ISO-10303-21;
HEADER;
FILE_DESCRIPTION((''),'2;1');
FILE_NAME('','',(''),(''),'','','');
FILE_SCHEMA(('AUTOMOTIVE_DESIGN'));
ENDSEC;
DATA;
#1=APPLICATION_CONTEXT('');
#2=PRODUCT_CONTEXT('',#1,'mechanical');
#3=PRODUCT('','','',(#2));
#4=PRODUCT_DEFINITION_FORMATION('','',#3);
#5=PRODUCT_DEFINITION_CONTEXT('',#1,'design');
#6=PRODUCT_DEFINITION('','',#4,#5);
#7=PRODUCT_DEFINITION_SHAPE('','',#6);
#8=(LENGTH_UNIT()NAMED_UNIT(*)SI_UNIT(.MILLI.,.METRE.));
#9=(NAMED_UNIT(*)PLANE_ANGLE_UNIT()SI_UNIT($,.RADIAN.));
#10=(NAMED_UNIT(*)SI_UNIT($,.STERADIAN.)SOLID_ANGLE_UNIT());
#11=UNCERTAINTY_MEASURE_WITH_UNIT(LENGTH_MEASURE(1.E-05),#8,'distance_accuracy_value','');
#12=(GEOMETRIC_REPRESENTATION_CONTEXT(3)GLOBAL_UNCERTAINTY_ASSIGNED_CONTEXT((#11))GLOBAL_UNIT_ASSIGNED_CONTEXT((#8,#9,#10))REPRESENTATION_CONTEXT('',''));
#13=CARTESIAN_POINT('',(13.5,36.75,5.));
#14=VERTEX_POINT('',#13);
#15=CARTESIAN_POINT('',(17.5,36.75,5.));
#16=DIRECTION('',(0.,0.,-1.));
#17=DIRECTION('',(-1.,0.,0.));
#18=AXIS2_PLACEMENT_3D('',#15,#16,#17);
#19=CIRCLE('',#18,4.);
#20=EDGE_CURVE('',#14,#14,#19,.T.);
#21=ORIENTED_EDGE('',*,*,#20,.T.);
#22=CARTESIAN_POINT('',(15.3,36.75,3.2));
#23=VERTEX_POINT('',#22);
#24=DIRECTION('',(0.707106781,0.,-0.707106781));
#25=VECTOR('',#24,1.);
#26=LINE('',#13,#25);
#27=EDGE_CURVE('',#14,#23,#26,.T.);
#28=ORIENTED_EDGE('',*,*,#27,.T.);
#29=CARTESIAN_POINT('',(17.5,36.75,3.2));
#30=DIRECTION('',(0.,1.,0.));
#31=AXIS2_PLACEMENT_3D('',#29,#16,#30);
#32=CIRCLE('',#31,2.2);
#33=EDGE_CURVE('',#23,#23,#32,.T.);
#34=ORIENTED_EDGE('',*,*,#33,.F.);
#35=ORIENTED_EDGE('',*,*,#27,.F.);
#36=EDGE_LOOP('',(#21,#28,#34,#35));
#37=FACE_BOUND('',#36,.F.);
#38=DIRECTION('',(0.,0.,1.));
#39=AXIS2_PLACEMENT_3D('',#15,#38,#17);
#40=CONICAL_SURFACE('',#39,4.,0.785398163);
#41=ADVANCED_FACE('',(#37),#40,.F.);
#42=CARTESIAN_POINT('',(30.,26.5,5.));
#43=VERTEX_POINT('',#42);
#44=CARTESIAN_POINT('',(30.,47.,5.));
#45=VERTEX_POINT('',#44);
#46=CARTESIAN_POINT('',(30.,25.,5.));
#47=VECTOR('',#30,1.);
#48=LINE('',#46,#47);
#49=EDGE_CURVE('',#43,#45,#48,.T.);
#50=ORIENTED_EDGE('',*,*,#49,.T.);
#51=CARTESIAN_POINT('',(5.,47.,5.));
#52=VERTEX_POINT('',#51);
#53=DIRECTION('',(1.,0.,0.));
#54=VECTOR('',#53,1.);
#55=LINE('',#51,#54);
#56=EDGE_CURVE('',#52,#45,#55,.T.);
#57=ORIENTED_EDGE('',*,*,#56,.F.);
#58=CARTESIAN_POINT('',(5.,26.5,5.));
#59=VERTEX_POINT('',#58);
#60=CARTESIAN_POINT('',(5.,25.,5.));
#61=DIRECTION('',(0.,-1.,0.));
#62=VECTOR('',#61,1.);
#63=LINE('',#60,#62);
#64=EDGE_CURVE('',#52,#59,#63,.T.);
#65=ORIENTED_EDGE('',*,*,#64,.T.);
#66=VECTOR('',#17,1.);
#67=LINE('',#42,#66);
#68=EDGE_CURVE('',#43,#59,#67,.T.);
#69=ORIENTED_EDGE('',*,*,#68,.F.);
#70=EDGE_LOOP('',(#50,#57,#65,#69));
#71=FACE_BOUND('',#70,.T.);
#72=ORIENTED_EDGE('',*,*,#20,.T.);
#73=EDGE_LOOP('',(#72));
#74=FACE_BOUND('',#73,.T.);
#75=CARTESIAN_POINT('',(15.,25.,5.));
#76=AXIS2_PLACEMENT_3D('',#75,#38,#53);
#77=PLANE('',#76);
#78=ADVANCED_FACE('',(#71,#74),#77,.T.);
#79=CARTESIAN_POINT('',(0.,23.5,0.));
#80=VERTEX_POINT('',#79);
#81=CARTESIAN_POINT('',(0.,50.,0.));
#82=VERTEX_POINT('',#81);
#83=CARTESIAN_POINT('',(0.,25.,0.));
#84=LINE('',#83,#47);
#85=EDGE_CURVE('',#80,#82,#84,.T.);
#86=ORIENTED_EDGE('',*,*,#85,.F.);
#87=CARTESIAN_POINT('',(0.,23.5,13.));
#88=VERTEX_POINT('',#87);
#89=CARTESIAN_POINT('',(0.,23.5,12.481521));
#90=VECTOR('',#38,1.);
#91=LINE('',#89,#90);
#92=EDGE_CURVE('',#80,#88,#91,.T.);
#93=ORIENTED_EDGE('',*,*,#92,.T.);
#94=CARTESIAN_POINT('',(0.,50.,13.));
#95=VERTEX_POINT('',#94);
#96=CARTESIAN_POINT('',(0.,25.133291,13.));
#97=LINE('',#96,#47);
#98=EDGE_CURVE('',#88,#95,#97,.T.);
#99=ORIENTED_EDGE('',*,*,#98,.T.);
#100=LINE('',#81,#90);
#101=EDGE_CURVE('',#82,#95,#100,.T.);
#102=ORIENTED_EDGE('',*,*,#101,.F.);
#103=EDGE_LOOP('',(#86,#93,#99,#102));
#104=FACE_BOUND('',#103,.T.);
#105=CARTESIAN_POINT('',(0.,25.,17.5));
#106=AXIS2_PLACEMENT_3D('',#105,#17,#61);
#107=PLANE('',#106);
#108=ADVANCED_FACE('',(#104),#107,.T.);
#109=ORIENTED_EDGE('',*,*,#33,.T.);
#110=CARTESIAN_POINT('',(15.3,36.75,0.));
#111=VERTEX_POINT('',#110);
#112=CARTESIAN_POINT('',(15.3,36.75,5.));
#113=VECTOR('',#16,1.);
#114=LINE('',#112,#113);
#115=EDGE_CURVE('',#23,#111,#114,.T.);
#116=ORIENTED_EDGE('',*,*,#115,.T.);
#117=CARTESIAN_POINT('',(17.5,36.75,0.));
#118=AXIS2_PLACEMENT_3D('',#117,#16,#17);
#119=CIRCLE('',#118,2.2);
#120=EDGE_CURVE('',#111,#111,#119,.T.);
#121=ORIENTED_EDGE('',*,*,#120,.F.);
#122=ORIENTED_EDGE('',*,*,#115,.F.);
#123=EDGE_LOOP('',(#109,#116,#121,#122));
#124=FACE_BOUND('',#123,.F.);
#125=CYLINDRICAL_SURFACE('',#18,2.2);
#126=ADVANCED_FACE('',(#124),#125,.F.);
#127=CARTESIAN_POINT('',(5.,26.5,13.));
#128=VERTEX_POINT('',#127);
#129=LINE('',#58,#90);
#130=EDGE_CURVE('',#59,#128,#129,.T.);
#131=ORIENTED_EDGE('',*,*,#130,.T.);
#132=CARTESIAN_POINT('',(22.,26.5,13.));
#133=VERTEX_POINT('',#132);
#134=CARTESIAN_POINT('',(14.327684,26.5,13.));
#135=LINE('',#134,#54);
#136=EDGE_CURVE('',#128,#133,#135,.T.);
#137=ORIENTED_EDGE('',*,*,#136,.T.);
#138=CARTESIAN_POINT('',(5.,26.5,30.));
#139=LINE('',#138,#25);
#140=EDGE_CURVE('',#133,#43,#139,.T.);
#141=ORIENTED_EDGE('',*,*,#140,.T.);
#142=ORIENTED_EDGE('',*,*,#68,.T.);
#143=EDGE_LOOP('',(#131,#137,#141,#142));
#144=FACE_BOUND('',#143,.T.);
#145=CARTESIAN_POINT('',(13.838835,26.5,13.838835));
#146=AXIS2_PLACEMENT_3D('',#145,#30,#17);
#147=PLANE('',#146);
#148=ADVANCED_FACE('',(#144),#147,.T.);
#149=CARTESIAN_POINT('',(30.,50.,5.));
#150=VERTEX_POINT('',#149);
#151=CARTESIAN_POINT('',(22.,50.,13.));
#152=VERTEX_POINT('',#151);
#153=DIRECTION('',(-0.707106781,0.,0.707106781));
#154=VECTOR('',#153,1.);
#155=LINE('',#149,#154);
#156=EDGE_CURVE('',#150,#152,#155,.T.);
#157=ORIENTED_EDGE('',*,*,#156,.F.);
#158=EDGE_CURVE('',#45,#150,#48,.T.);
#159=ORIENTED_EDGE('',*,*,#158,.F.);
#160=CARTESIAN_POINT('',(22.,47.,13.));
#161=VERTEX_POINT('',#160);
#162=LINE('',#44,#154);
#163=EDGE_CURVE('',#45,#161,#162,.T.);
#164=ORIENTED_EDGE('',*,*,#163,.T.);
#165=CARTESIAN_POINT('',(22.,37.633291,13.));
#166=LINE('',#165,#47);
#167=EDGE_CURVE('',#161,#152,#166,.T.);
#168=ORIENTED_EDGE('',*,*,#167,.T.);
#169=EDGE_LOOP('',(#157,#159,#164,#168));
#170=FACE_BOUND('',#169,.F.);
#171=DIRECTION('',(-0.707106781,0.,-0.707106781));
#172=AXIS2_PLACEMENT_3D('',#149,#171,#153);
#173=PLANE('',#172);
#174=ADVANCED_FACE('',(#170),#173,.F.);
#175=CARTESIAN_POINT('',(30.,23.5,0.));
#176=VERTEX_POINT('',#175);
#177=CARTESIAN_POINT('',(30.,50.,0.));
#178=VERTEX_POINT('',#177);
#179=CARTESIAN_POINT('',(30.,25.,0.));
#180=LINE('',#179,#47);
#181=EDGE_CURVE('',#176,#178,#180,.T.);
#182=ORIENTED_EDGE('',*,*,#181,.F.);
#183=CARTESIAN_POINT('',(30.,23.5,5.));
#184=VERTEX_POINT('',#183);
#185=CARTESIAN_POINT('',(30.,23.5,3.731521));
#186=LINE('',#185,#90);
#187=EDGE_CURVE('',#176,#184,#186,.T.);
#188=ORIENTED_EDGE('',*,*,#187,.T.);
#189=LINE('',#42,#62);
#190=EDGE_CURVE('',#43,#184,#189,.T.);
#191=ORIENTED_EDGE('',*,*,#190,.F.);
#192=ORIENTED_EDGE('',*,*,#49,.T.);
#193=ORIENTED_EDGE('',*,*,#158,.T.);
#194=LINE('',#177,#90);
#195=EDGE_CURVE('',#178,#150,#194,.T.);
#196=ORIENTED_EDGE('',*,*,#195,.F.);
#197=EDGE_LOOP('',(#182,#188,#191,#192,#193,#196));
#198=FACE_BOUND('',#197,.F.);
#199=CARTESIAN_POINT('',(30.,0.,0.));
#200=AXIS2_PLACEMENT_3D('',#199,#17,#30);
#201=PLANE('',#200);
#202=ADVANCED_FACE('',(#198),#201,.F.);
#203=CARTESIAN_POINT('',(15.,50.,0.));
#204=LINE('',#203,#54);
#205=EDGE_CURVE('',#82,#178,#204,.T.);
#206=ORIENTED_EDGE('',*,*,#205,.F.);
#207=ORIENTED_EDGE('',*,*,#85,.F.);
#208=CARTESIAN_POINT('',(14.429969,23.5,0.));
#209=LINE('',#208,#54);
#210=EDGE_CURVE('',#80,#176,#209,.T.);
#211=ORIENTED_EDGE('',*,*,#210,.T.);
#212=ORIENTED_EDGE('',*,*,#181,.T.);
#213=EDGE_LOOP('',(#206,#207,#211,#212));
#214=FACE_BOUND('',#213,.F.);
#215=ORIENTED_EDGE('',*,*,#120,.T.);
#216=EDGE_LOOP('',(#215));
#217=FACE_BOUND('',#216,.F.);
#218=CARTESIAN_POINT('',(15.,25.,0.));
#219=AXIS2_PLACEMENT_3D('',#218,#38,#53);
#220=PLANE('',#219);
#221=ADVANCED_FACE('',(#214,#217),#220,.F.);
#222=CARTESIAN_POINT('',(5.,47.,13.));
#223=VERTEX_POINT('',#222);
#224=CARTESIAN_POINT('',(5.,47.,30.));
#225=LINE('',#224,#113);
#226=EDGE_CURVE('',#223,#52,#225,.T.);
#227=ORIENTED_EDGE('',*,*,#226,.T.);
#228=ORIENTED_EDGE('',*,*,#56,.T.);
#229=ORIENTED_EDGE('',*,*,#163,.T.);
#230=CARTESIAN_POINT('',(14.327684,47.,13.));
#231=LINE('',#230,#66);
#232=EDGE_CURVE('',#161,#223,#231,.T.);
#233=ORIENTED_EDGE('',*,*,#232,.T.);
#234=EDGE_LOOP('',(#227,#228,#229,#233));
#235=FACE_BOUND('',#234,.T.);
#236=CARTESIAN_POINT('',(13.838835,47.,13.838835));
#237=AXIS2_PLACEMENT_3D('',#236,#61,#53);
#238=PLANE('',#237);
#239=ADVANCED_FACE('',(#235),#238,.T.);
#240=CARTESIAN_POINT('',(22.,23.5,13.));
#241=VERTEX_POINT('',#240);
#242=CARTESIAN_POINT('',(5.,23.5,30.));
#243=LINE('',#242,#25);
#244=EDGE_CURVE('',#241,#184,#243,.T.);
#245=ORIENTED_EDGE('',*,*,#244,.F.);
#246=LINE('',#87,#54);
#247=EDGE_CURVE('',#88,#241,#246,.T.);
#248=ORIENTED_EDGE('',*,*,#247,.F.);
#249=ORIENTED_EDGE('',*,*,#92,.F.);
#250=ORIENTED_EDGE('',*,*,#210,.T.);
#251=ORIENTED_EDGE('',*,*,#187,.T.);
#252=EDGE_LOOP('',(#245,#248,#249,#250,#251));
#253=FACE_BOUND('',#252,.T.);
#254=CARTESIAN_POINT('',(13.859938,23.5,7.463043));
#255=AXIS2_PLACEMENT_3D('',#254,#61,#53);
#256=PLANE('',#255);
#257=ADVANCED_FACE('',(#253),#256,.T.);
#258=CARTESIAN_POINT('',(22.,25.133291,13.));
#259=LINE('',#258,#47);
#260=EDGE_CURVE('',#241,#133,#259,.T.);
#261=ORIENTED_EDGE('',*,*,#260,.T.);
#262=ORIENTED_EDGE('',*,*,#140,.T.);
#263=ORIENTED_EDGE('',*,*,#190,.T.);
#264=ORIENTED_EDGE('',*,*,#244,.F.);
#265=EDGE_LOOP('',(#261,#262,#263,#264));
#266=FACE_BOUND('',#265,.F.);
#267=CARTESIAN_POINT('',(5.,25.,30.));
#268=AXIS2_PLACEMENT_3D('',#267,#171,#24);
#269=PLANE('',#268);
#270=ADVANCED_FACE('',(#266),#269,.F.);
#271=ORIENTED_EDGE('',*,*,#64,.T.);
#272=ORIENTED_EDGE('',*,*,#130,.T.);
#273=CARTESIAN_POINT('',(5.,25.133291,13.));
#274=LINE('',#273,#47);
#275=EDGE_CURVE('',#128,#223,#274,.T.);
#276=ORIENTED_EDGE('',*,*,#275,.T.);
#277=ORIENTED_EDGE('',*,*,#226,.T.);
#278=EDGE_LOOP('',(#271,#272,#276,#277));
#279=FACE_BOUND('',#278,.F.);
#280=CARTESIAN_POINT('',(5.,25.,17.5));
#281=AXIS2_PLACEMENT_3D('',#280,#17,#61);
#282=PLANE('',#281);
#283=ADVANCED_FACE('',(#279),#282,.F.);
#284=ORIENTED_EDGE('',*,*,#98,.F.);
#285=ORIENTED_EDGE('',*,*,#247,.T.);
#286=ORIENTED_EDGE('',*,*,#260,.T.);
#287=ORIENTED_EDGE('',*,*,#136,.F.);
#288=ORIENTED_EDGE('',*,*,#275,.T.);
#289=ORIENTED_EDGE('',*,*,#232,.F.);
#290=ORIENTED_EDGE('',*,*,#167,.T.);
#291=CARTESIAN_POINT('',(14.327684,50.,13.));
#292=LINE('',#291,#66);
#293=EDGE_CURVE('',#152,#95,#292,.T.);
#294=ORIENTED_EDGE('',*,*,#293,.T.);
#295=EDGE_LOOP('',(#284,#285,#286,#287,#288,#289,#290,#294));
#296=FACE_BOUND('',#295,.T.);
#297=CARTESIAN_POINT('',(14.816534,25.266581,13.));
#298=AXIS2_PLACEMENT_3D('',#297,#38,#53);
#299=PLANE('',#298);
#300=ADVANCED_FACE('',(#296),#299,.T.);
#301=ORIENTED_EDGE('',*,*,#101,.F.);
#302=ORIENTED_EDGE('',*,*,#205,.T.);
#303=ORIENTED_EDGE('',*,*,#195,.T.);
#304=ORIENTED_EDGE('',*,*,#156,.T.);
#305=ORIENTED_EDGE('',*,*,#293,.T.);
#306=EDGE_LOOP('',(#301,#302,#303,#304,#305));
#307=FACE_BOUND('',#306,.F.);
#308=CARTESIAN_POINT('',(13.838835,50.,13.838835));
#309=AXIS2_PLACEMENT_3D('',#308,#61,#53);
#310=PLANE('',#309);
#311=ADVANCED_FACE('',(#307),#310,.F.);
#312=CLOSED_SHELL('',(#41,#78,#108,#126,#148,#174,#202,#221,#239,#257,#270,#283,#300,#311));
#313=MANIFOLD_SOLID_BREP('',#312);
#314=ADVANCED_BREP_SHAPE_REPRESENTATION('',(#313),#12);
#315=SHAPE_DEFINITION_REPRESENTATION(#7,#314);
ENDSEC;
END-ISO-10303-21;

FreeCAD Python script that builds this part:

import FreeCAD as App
import Part
import Sketcher

V = App.Vector


def add_polygon(sketch, points):
    """Adds a closed chain of lines whose ends are joined by coincident constraints."""
    first, n = sketch.GeometryCount, len(points)
    for a, b in zip(points, points[1:] + points[:1]):
        sketch.addGeometry(Part.LineSegment(App.Vector(*a, 0), App.Vector(*b, 0)), False)
    for i in range(n):
        sketch.addConstraint(Sketcher.Constraint("Coincident", first + i, 2, first + (i + 1) % n, 1))

doc = App.newDocument("Part")
body = doc.addObject("PartDesign::Body", "Body")

# Sketch on XY plane
sketch1 = body.newObject("Sketcher::SketchObject", "Sketch")
sketch1.AttachmentSupport = (doc.getObject("XY_Plane"), [""])
sketch1.MapMode = "FlatFace"
add_polygon(sketch1, [(0, 50), (0, 0), (30, 0), (30, 50)])  # lines 0-3
sketch1.addConstraint([
    Sketcher.Constraint("Vertical", 0),
    Sketcher.Constraint("Horizontal", 1),
    Sketcher.Constraint("Vertical", 2),
    Sketcher.Constraint("Horizontal", 3),
    Sketcher.Constraint("Coincident", 0, 2, -1, 1),
    Sketcher.Constraint("DistanceX", 1, 1, 1, 2, 30.0),
    Sketcher.Constraint("DistanceY", 0, 2, 0, 1, 50.0),
])
pad1 = body.newObject("PartDesign::Pad", "Pad")
pad1.Profile = sketch1
pad1.Length = 5

# Sketch on YZ plane
sketch2 = body.newObject("Sketcher::SketchObject", "Sketch001")
sketch2.AttachmentSupport = (doc.getObject("YZ_Plane"), [""])
sketch2.MapMode = "FlatFace"
add_polygon(sketch2, [(50, 30), (50, 5), (0, 5), (0, 30)])  # lines 0-3
sketch2.addConstraint([
    Sketcher.Constraint("Vertical", 0),
    Sketcher.Constraint("Horizontal", 1),
    Sketcher.Constraint("Vertical", 2),
    Sketcher.Constraint("Horizontal", 3),
    Sketcher.Constraint("PointOnObject", 1, 2, -2),
    Sketcher.Constraint("DistanceX", 1, 2, 1, 1, 50.0),
    Sketcher.Constraint("DistanceY", 0, 2, 0, 1, 25.0),
    Sketcher.Constraint("DistanceY", -1, 1, 0, 2, 5.0),
])
pad2 = body.newObject("PartDesign::Pad", "Pad001")
pad2.Profile = sketch2
pad2.Length = 5

# Sketch on XZ plane
sketch3 = body.newObject("Sketcher::SketchObject", "Sketch002")
sketch3.AttachmentSupport = (doc.getObject("XZ_Plane"), [""])
sketch3.MapMode = "FlatFace"
add_polygon(sketch3, [(5, 30), (5, 5), (30, 5)])  # lines 0-2
sketch3.addConstraint([
    Sketcher.Constraint("Vertical", 0),
    Sketcher.Constraint("Horizontal", 1),
    Sketcher.Constraint("Equal", 1, 0),
    Sketcher.Constraint("DistanceX", 1, 1, 1, 2, 25.0),
    Sketcher.Constraint("DistanceX", -1, 1, 0, 2, 5.0),
    Sketcher.Constraint("DistanceY", -1, 1, 0, 2, 5.0),
])
pad3 = body.newObject("PartDesign::Pad", "Pad002")
pad3.Profile = sketch3
pad3.Length = 3
pad3.Reversed = True

# Sketch on XZ plane
sketch4 = body.newObject("Sketcher::SketchObject", "Sketch003")
sketch4.AttachmentSupport = (doc.getObject("XZ_Plane"), [""])
sketch4.MapMode = "FlatFace"
sketch4.AttachmentOffset = App.Placement(V(0, 0, -25), App.Rotation())
add_polygon(sketch4, [(5, 30), (5, 5), (30, 5)])  # lines 0-2
sketch4.addConstraint([
    Sketcher.Constraint("Vertical", 0),
    Sketcher.Constraint("Horizontal", 1),
    Sketcher.Constraint("Equal", 1, 0),
    Sketcher.Constraint("DistanceX", 1, 1, 1, 2, 25.0),
    Sketcher.Constraint("DistanceX", -1, 1, 0, 2, 5.0),
    Sketcher.Constraint("DistanceY", -1, 1, 0, 2, 5.0),
])
pad4 = body.newObject("PartDesign::Pad", "Pad003")
pad4.Profile = sketch4
pad4.Length = 3
pad4.Midplane = True

# Sketch on XZ plane
sketch5 = body.newObject("Sketcher::SketchObject", "Sketch004")
sketch5.AttachmentSupport = (doc.getObject("XZ_Plane"), [""])
sketch5.MapMode = "FlatFace"
sketch5.AttachmentOffset = App.Placement(V(0, 0, -50), App.Rotation())
add_polygon(sketch5, [(5, 30), (5, 5), (30, 5)])  # lines 0-2
sketch5.addConstraint([
    Sketcher.Constraint("Vertical", 0),
    Sketcher.Constraint("Horizontal", 1),
    Sketcher.Constraint("Equal", 1, 0),
    Sketcher.Constraint("DistanceX", 1, 1, 1, 2, 25.0),
    Sketcher.Constraint("DistanceX", -1, 1, 0, 2, 5.0),
    Sketcher.Constraint("DistanceY", -1, 1, 0, 2, 5.0),
])
pad5 = body.newObject("PartDesign::Pad", "Pad004")
pad5.Profile = sketch5
pad5.Length = 3

# Sketch on XY plane
sketch6 = body.newObject("Sketcher::SketchObject", "Sketch005")
sketch6.AttachmentSupport = (doc.getObject("XY_Plane"), [""])
sketch6.MapMode = "FlatFace"
sketch6.AttachmentOffset = App.Placement(V(0, 0, 5), App.Rotation())
sketch6.addGeometry([
    Part.Circle(V(17.5, 36.75, 0), V(0, 0, 1), 2.2),
    Part.Circle(V(17.5, 13.25, 0), V(0, 0, 1), 2.2),
], False)
sketch6.addConstraint([
    Sketcher.Constraint("Equal", 0, 1),
    Sketcher.Constraint("Vertical", 0, 3, 1, 3),
    Sketcher.Constraint("Diameter", 0, 4.4),
    Sketcher.Constraint("DistanceX", -1, 1, 0, 3, 17.5),
    Sketcher.Constraint("DistanceY", 1, 3, 0, 3, 23.5),
    Sketcher.Constraint("DistanceY", -1, 1, 0, 3, 36.75),
])
doc.recompute()
hole = body.newObject("PartDesign::Hole", "Hole")
hole.Profile = sketch6
hole.ThreadType = "None"
hole.Diameter = 4.4
hole.DepthType = "Dimension"
hole.Depth = 25
hole.DrillPoint = "Flat"
hole.HoleCutType = "Countersink"
hole.HoleCutDiameter = 8
hole.HoleCutCountersinkAngle = 90

# Sketch on XY plane
sketch7 = body.newObject("Sketcher::SketchObject", "Sketch006")
sketch7.AttachmentSupport = (doc.getObject("XY_Plane"), [""])
sketch7.MapMode = "FlatFace"
sketch7.AttachmentOffset = App.Placement(V(0, 0, 13), App.Rotation())
add_polygon(sketch7, [(-5.63377, 53.523178), (-5.63377, -2.990016), (35.266838, -2.990016), (35.266838, 53.523178)])  # lines 0-3
sketch7.addConstraint([
    Sketcher.Constraint("Vertical", 0),
    Sketcher.Constraint("Horizontal", 1),
    Sketcher.Constraint("Vertical", 2),
    Sketcher.Constraint("Horizontal", 3),
    Sketcher.Constraint("DistanceX", 1, 1, 1, 2, 40.900608),
    Sketcher.Constraint("DistanceY", 0, 2, 0, 1, 56.513194),
    Sketcher.Constraint("DistanceX", 0, 2, -1, 1, 5.63377),
    Sketcher.Constraint("DistanceY", 0, 2, -1, 1, 2.990016),
])
pocket1 = body.newObject("PartDesign::Pocket", "Pocket")
pocket1.Profile = sketch7
pocket1.Length = 25
pocket1.Reversed = True

# Sketch on XZ plane
sketch8 = body.newObject("Sketcher::SketchObject", "Sketch007")
sketch8.AttachmentSupport = (doc.getObject("XZ_Plane"), [""])
sketch8.MapMode = "FlatFace"
add_polygon(sketch8, [(-8.857238, 24.685448), (-8.857238, -9.759362), (36.577114, -9.759362), (36.577114, 24.685448)])  # lines 0-3
sketch8.addConstraint([
    Sketcher.Constraint("Vertical", 0),
    Sketcher.Constraint("Horizontal", 1),
    Sketcher.Constraint("Vertical", 2),
    Sketcher.Constraint("Horizontal", 3),
    Sketcher.Constraint("DistanceY", 0, 2, 0, 1, 34.44481),
    Sketcher.Constraint("DistanceX", 1, 1, 1, 2, 45.434352),
    Sketcher.Constraint("DistanceX", 0, 2, -1, 1, 8.857238),
    Sketcher.Constraint("DistanceY", -1, 1, 2, 2, 24.685448),
])
pocket2 = body.newObject("PartDesign::Pocket", "Pocket001")
pocket2.Profile = sketch8
pocket2.Length = 23.5

doc.recompute()
